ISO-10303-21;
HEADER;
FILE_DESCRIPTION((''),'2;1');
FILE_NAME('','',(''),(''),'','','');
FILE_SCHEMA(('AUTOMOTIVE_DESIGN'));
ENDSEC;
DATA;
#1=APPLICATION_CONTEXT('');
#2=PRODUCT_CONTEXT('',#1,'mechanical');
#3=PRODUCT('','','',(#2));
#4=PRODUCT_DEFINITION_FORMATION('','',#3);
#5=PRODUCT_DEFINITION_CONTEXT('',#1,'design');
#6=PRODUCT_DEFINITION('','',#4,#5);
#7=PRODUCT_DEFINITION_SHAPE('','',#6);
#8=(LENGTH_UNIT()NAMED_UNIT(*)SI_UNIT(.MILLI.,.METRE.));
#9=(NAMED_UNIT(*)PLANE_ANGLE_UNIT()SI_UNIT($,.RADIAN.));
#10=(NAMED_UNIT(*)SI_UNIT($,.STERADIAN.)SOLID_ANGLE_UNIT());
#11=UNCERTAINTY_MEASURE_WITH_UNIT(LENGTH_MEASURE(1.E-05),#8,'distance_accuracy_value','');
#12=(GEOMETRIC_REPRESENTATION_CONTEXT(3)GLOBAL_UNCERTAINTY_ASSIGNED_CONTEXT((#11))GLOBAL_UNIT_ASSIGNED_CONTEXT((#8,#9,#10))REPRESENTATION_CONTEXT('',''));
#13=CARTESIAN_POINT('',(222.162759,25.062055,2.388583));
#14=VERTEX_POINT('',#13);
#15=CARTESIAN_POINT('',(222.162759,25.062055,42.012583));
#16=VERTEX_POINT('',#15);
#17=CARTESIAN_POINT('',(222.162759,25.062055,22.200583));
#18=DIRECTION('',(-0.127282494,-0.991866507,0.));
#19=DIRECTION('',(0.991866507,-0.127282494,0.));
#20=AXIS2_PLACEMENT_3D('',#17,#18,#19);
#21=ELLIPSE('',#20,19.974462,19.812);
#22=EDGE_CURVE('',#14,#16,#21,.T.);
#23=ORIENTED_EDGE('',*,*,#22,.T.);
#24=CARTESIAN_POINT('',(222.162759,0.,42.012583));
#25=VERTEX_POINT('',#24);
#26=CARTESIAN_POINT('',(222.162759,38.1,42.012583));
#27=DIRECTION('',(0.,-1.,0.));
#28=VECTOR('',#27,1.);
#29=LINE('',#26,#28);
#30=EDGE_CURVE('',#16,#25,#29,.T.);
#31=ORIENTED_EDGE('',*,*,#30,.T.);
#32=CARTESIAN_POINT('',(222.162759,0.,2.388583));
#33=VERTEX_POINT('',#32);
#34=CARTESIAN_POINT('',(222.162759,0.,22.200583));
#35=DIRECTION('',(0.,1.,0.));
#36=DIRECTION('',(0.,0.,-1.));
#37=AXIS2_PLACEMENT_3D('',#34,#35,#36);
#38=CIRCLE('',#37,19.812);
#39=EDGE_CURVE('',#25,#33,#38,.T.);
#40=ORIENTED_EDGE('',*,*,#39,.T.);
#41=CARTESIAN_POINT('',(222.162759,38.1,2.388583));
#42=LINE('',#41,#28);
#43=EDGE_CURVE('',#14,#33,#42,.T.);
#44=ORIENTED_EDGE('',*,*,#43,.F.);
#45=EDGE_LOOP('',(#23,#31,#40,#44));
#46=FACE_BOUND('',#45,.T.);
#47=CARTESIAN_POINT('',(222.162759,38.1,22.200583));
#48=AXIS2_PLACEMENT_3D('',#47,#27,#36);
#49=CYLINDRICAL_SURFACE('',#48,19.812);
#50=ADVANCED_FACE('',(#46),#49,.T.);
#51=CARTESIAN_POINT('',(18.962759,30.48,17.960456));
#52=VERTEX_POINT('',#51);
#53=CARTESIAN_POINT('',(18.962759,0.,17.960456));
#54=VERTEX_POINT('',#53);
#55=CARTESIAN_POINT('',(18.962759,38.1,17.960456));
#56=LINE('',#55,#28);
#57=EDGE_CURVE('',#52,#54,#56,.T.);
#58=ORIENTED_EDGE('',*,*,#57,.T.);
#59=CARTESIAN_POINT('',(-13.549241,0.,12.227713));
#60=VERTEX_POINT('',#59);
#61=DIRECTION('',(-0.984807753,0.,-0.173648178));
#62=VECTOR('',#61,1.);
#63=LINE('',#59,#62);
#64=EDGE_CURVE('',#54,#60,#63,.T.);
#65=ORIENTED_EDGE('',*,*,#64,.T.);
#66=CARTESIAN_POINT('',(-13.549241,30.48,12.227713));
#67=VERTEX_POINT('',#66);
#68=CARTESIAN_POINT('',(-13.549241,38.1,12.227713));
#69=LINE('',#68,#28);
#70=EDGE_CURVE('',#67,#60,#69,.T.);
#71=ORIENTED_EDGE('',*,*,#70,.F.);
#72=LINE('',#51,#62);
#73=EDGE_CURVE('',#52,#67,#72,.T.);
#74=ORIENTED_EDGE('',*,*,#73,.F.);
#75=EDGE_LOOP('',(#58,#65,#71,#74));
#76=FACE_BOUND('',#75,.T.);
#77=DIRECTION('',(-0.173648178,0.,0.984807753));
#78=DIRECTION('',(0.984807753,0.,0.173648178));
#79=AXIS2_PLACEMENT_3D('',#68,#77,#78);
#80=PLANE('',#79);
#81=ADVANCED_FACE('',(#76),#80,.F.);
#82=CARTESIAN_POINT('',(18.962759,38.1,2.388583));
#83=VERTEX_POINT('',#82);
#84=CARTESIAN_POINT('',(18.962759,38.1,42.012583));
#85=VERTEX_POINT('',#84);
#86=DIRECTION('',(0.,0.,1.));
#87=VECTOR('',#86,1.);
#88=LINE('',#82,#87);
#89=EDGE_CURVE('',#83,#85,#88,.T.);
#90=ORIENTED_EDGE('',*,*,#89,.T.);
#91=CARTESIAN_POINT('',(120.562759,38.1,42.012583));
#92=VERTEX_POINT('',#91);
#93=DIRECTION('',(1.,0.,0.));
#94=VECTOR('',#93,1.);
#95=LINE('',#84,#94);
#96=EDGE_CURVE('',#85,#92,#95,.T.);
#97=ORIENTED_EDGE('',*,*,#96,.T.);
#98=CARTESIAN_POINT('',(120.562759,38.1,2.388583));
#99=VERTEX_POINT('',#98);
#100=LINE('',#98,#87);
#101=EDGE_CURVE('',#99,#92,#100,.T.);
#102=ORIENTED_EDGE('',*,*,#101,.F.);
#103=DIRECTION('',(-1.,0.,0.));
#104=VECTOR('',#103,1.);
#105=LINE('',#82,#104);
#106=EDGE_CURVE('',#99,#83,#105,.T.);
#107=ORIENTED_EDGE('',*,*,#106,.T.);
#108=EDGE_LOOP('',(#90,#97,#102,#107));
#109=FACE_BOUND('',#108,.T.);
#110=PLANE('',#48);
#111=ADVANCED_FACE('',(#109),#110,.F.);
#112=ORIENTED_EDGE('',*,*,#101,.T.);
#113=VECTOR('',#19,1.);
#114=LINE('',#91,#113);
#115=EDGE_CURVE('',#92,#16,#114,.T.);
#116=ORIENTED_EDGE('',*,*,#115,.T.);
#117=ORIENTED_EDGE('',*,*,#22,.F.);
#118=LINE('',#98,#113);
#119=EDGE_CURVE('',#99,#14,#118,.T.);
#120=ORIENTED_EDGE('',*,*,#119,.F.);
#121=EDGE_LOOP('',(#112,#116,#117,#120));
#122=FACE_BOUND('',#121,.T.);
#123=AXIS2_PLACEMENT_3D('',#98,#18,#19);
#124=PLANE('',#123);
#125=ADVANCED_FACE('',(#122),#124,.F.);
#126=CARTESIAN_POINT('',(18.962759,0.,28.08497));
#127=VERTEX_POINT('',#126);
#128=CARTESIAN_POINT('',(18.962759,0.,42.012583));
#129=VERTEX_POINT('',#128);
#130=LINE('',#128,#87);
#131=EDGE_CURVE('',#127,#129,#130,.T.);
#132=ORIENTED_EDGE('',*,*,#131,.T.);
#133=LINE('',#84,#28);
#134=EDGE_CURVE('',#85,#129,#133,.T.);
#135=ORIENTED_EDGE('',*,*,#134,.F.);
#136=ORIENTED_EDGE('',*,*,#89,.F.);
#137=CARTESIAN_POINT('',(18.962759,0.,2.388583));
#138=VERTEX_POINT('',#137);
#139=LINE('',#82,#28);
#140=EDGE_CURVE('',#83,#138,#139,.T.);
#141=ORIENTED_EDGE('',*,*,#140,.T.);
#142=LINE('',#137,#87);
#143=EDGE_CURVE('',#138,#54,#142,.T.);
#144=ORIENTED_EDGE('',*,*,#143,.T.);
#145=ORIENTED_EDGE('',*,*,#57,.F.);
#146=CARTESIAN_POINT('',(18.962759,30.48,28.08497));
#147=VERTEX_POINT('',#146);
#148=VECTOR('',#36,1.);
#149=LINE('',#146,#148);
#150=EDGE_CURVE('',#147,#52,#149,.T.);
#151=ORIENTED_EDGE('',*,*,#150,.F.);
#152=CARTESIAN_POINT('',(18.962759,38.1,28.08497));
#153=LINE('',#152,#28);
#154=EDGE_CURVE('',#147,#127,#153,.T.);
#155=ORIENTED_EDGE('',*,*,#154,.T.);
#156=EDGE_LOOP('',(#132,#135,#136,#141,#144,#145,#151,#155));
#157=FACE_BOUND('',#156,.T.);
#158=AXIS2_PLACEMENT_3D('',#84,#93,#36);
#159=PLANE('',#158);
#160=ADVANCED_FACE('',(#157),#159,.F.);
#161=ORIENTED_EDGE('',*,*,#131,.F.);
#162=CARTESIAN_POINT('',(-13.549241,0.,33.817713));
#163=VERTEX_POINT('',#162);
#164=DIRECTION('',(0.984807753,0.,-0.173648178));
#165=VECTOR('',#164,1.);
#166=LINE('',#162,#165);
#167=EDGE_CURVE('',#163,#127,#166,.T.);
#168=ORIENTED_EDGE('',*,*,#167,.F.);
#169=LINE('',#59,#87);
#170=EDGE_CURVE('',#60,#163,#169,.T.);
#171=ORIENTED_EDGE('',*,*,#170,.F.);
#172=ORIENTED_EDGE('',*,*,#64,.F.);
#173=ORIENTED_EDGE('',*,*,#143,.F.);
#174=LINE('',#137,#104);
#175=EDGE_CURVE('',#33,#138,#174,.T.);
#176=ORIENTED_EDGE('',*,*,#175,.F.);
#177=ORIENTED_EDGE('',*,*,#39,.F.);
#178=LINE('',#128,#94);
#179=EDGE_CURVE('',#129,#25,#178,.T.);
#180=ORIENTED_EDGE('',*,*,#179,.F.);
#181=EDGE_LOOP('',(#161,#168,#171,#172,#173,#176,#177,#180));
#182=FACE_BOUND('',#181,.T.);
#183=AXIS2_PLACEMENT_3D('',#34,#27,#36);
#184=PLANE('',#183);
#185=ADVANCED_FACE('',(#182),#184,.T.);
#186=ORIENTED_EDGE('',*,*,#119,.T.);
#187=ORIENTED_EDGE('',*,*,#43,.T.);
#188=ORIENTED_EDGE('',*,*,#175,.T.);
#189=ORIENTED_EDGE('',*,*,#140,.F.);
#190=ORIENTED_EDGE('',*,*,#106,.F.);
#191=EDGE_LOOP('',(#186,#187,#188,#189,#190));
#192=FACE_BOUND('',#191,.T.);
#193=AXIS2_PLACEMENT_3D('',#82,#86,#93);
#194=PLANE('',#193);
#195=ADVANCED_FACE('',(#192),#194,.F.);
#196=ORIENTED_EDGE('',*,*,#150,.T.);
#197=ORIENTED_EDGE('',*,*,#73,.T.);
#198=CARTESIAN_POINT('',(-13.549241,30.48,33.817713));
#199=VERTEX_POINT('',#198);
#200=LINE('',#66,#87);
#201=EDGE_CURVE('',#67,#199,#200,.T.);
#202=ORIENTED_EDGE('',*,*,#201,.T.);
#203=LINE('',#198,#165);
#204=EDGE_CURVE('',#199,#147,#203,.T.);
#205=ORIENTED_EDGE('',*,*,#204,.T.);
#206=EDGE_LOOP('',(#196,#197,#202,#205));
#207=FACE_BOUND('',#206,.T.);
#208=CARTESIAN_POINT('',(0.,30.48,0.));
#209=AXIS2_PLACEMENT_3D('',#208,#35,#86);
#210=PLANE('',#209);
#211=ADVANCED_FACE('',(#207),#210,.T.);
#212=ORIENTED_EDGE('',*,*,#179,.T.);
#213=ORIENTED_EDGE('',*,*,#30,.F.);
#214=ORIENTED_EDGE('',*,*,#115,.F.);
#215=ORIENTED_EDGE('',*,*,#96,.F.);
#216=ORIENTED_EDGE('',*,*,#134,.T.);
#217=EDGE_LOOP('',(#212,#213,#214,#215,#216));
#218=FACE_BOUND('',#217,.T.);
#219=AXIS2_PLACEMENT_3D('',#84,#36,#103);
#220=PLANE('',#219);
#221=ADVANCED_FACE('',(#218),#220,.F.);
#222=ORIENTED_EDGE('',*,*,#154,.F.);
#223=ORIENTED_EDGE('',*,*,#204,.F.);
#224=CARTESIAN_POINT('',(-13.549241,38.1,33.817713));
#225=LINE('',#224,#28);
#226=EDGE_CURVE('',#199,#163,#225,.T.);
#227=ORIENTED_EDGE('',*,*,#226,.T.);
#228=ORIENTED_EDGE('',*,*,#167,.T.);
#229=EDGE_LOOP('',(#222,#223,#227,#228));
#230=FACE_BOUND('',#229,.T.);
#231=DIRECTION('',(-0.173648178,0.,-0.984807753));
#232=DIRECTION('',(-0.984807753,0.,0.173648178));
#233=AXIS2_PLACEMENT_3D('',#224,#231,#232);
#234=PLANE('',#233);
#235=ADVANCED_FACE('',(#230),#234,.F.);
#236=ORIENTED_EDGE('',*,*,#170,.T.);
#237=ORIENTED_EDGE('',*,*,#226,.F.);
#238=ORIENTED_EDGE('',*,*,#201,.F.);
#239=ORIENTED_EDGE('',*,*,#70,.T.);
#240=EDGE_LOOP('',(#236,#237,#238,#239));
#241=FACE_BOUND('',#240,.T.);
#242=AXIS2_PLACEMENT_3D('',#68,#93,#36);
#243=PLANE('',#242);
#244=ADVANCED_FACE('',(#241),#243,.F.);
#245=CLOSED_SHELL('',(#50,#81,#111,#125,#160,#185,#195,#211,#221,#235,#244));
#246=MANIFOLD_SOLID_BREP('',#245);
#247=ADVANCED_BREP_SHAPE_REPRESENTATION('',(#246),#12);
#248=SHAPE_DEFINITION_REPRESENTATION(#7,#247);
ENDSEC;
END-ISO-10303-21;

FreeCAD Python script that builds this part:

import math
import FreeCAD as App
import Part
import Sketcher
Q = App.Units.Quantity

doc = App.newDocument("Part")
body = doc.addObject("PartDesign::Body", "Body")

# Sketch on XZ plane
sketch1 = doc.addObject("Sketcher::SketchObject", "Sketch")
body.addObject(sketch1)
sketch1.AttachmentSupport = (doc.XZ_Plane, [""])
sketch1.MapMode = "FlatFace"
sketch1.addGeometry([
    Part.LineSegment(App.Vector(-14, 12, 0), App.Vector(-14, 34, 0)),  # 0
    Part.LineSegment(App.Vector(-14, 34, 0), App.Vector(19, 28, 0)),  # 1
    Part.LineSegment(App.Vector(19, 28, 0), App.Vector(19, 42, 0)),  # 2
    Part.LineSegment(App.Vector(19, 42, 0), App.Vector(222, 42, 0)),  # 3
    Part.ArcOfCircle(Part.Circle(App.Vector(222, 22, 0), App.Vector(0, 0, 1), 20), math.radians(-90), math.radians(90)),  # 4
    Part.LineSegment(App.Vector(222, 2, 0), App.Vector(19, 2, 0)),  # 5
    Part.LineSegment(App.Vector(19, 2, 0), App.Vector(19, 18, 0)),  # 6
    Part.LineSegment(App.Vector(19, 18, 0), App.Vector(-14, 12, 0)),  # 7
], False)
sketch1.addConstraint([
    Sketcher.Constraint("Coincident", 0, 2, 1, 1),
    Sketcher.Constraint("Coincident", 1, 2, 2, 1),
    Sketcher.Constraint("Coincident", 2, 2, 3, 1),
    Sketcher.Constraint("Tangent", 3, 2, 4, 2),
    Sketcher.Constraint("Tangent", 4, 1, 5, 1),
    Sketcher.Constraint("Coincident", 5, 2, 6, 1),
    Sketcher.Constraint("Coincident", 6, 2, 7, 1),
    Sketcher.Constraint("Coincident", 7, 2, 0, 1),
    Sketcher.Constraint("Vertical", 0),
    Sketcher.Constraint("Vertical", 2),
    Sketcher.Constraint("Horizontal", 3),
    Sketcher.Constraint("Horizontal", 5),
    Sketcher.Constraint("Vertical", 6),
    Sketcher.Constraint("Vertical", 2, 2, 5, 2),
    Sketcher.Constraint("Equal", 1, 7),
    Sketcher.Constraint("DistanceX", 3, 1, 3, 2, Q("8 in")),
    Sketcher.Constraint("Radius", 4, Q("0.78 in")),
    Sketcher.Constraint("Angle", 1, Q("-10 deg")),
    Sketcher.Constraint("DistanceY", 0, 1, 0, 2, Q("0.85 in")),
    Sketcher.Constraint("DistanceX", 0, 2, 4, 3, Q("9.28 in")),
    Sketcher.Constraint("DistanceY", 2, 1, 2, 2, 13.927613),
    Sketcher.Constraint("DistanceX", -1, 1, 4, 3, 222.162759),
    Sketcher.Constraint("DistanceY", -1, 1, 1, 2, 28.08497),
])
pad1 = doc.addObject("PartDesign::Pad", "Pad")
body.addObject(pad1)
pad1.Profile = sketch1
pad1.Length = Q("1.5 in")
pad1.Reversed = True

# Sketch on XZ plane
sketch2 = doc.addObject("Sketcher::SketchObject", "Sketch001")
body.addObject(sketch2)
sketch2.AttachmentSupport = (doc.XZ_Plane, [""])
sketch2.MapMode = "FlatFace"
sketch2.AttachmentOffset = App.Placement(App.Vector(0, 0, -1.5 * 25.4), App.Rotation())
sketch2.addGeometry([
    Part.LineSegment(App.Vector(-14, 12, 0), App.Vector(-14, 34, 0)),
    Part.LineSegment(App.Vector(-14, 34, 0), App.Vector(19, 28, 0)),
    Part.LineSegment(App.Vector(19, 28, 0), App.Vector(19, 18, 0)),
    Part.LineSegment(App.Vector(19, 18, 0), App.Vector(-14, 12, 0)),
], False)
sketch2.addConstraint([
    Sketcher.Constraint("Coincident", 0, 2, 1, 1),
    Sketcher.Constraint("Coincident", 1, 2, 2, 1),
    Sketcher.Constraint("Coincident", 2, 2, 3, 1),
    Sketcher.Constraint("Coincident", 3, 2, 0, 1),
    Sketcher.Constraint("Vertical", 0),
    Sketcher.Constraint("Vertical", 2),
    Sketcher.Constraint("Equal", 1, 3),
    Sketcher.Constraint("Angle", 1, Q("-10 deg")),
    Sketcher.Constraint("DistanceY", 0, 1, 0, 2, Q("0.85 in")),
    Sketcher.Constraint("DistanceX", 0, 2, 1, 2, Q("1.28 in")),
    Sketcher.Constraint("DistanceX", 0, 2, -1, 1, 13.549241),
    Sketcher.Constraint("DistanceY", -1, 1, 1, 2, 28.08497),
])
pocket1 = doc.addObject("PartDesign::Pocket", "Pocket")
body.addObject(pocket1)
pocket1.Profile = sketch2
pocket1.Length = Q("0.3 in")
pocket1.Reversed = True

# Sketch on XY plane
sketch3 = doc.addObject("Sketcher::SketchObject", "Sketch002")
body.addObject(sketch3)
sketch3.AttachmentSupport = (doc.XY_Plane, [""])
sketch3.MapMode = "FlatFace"
sketch3.AttachmentOffset = App.Placement(App.Vector(0, 0, 42.012583), App.Rotation())
sketch3.addGeometry([
    Part.LineSegment(App.Vector(121, 38, 0), App.Vector(242, 23, 0)),
    Part.LineSegment(App.Vector(242, 23, 0), App.Vector(242, 38, 0)),
    Part.LineSegment(App.Vector(242, 38, 0), App.Vector(121, 38, 0)),
], False)
sketch3.addConstraint([
    Sketcher.Constraint("Coincident", 0, 2, 1, 1),
    Sketcher.Constraint("Coincident", 1, 2, 2, 1),
    Sketcher.Constraint("Coincident", 2, 2, 0, 1),
    Sketcher.Constraint("Vertical", 1),
    Sketcher.Constraint("Horizontal", 2),
    Sketcher.Constraint("DistanceX", 2, 2, 2, 1, Q("4.78 in")),
    Sketcher.Constraint("DistanceY", -1, 1, 1, 2, Q("1.5 in")),
    Sketcher.Constraint("Distance", 0, 122.407601),
    Sketcher.Constraint("DistanceX", -1, 1, 0, 2, 241.974759),
])
pocket2 = doc.addObject("PartDesign::Pocket", "Pocket001")
body.addObject(pocket2)
pocket2.Profile = sketch3
pocket2.Length = Q("1.56 in")

doc.recompute()
